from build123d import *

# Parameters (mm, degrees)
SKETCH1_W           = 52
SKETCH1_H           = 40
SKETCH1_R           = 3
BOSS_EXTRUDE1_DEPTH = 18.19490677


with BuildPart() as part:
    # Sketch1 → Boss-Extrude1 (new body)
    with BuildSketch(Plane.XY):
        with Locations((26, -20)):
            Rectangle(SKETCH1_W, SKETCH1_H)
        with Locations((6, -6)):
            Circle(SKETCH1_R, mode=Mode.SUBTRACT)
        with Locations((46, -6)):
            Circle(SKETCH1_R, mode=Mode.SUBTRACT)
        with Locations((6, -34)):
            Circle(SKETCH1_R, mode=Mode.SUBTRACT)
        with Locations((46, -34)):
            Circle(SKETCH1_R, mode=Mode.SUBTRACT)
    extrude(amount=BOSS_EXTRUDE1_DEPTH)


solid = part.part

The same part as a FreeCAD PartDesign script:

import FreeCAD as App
import Part
import Sketcher

V = App.Vector


def add_polygon(sketch, points):
    """Adds a closed chain of lines whose ends are joined by coincident constraints."""
    first, n = sketch.GeometryCount, len(points)
    for a, b in zip(points, points[1:] + points[:1]):
        sketch.addGeometry(Part.LineSegment(App.Vector(*a, 0), App.Vector(*b, 0)), False)
    for i in range(n):
        sketch.addConstraint(Sketcher.Constraint("Coincident", first + i, 2, first + (i + 1) % n, 1))

doc = App.newDocument("Part")
body = doc.addObject("PartDesign::Body", "Body")

# Sketch on XY plane
sketch1 = body.newObject("Sketcher::SketchObject", "Sketch")
sketch1.AttachmentSupport = (doc.getObject("XY_Plane"), [""])
sketch1.MapMode = "FlatFace"
add_polygon(sketch1, [(0, 0), (0, -40), (52, -40), (52, 0)])  # lines 0-3
sketch1.addGeometry(Part.Circle(V(6, -34, 0), V(0, 0, 1), 3), False)  # 4
sketch1.addGeometry(Part.Circle(V(46, -34, 0), V(0, 0, 1), 3), False)  # 5
sketch1.addGeometry(Part.Circle(V(6, -6, 0), V(0, 0, 1), 3), False)  # 6
sketch1.addGeometry(Part.Circle(V(46, -6, 0), V(0, 0, 1), 3), False)  # 7
sketch1.addConstraint(Sketcher.Constraint("Vertical", 0))
sketch1.addConstraint(Sketcher.Constraint("Horizontal", 1))
sketch1.addConstraint(Sketcher.Constraint("Vertical", 2))
sketch1.addConstraint(Sketcher.Constraint("Horizontal", 3))
sketch1.addConstraint(Sketcher.Constraint("Coincident", 3, 2, -1, 1))
sketch1.addConstraint(Sketcher.Constraint("Equal", 4, 5))
sketch1.addConstraint(Sketcher.Constraint("Equal", 5, 6))
sketch1.addConstraint(Sketcher.Constraint("Equal", 6, 7))
sketch1.addConstraint(Sketcher.Constraint("Horizontal", 4, 3, 5, 3))
sketch1.addConstraint(Sketcher.Constraint("Horizontal", 6, 3, 7, 3))
sketch1.addConstraint(Sketcher.Constraint("Vertical", 4, 3, 6, 3))
sketch1.addConstraint(Sketcher.Constraint("Vertical", 5, 3, 7, 3))
sketch1.addConstraint(Sketcher.Constraint("Diameter", 4, 6.0))
sketch1.addConstraint(Sketcher.Constraint("DistanceX", 1, 1, 1, 2, 52.0))
sketch1.addConstraint(Sketcher.Constraint("DistanceY", 0, 2, 0, 1, 40.0))
sketch1.addConstraint(Sketcher.Constraint("DistanceX", -1, 1, 4, 3, 6.0))
sketch1.addConstraint(Sketcher.Constraint("DistanceY", 4, 3, -1, 1, 34.0))
sketch1.addConstraint(Sketcher.Constraint("DistanceX", -1, 1, 5, 3, 46.0))
sketch1.addConstraint(Sketcher.Constraint("DistanceY", 6, 3, -1, 1, 6.0))
pad1 = body.newObject("PartDesign::Pad", "Pad")
pad1.Profile = sketch1
pad1.Length = 18.194907

doc.recompute()
